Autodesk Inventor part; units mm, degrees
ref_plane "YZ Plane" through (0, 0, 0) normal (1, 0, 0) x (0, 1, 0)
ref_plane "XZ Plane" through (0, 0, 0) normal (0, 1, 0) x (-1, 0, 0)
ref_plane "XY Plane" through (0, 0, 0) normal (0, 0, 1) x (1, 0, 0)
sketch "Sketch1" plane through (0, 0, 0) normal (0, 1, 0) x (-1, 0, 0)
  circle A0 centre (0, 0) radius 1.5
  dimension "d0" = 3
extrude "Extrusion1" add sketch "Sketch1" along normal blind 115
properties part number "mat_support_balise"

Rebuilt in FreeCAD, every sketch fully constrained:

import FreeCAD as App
import Part
import Sketcher

V = App.Vector

doc = App.newDocument("Part")
body = doc.addObject("PartDesign::Body", "Body")

# Sketch on XZ plane
sketch1 = body.newObject("Sketcher::SketchObject", "Sketch")
sketch1.AttachmentSupport = (doc.getObject("XZ_Plane"), [""])
sketch1.MapMode = "FlatFace"
sketch1.addGeometry(Part.Circle(V(0, 0, 0), V(0, 0, 1), 1.5), False)
sketch1.addConstraint([
    Sketcher.Constraint("Coincident", 0, 3, -1, 1),
    Sketcher.Constraint("Diameter", 0, 3.0),
])
pad1 = body.newObject("PartDesign::Pad", "Pad")
pad1.Profile = sketch1
pad1.Length = 115
pad1.Reversed = True

doc.recompute()
